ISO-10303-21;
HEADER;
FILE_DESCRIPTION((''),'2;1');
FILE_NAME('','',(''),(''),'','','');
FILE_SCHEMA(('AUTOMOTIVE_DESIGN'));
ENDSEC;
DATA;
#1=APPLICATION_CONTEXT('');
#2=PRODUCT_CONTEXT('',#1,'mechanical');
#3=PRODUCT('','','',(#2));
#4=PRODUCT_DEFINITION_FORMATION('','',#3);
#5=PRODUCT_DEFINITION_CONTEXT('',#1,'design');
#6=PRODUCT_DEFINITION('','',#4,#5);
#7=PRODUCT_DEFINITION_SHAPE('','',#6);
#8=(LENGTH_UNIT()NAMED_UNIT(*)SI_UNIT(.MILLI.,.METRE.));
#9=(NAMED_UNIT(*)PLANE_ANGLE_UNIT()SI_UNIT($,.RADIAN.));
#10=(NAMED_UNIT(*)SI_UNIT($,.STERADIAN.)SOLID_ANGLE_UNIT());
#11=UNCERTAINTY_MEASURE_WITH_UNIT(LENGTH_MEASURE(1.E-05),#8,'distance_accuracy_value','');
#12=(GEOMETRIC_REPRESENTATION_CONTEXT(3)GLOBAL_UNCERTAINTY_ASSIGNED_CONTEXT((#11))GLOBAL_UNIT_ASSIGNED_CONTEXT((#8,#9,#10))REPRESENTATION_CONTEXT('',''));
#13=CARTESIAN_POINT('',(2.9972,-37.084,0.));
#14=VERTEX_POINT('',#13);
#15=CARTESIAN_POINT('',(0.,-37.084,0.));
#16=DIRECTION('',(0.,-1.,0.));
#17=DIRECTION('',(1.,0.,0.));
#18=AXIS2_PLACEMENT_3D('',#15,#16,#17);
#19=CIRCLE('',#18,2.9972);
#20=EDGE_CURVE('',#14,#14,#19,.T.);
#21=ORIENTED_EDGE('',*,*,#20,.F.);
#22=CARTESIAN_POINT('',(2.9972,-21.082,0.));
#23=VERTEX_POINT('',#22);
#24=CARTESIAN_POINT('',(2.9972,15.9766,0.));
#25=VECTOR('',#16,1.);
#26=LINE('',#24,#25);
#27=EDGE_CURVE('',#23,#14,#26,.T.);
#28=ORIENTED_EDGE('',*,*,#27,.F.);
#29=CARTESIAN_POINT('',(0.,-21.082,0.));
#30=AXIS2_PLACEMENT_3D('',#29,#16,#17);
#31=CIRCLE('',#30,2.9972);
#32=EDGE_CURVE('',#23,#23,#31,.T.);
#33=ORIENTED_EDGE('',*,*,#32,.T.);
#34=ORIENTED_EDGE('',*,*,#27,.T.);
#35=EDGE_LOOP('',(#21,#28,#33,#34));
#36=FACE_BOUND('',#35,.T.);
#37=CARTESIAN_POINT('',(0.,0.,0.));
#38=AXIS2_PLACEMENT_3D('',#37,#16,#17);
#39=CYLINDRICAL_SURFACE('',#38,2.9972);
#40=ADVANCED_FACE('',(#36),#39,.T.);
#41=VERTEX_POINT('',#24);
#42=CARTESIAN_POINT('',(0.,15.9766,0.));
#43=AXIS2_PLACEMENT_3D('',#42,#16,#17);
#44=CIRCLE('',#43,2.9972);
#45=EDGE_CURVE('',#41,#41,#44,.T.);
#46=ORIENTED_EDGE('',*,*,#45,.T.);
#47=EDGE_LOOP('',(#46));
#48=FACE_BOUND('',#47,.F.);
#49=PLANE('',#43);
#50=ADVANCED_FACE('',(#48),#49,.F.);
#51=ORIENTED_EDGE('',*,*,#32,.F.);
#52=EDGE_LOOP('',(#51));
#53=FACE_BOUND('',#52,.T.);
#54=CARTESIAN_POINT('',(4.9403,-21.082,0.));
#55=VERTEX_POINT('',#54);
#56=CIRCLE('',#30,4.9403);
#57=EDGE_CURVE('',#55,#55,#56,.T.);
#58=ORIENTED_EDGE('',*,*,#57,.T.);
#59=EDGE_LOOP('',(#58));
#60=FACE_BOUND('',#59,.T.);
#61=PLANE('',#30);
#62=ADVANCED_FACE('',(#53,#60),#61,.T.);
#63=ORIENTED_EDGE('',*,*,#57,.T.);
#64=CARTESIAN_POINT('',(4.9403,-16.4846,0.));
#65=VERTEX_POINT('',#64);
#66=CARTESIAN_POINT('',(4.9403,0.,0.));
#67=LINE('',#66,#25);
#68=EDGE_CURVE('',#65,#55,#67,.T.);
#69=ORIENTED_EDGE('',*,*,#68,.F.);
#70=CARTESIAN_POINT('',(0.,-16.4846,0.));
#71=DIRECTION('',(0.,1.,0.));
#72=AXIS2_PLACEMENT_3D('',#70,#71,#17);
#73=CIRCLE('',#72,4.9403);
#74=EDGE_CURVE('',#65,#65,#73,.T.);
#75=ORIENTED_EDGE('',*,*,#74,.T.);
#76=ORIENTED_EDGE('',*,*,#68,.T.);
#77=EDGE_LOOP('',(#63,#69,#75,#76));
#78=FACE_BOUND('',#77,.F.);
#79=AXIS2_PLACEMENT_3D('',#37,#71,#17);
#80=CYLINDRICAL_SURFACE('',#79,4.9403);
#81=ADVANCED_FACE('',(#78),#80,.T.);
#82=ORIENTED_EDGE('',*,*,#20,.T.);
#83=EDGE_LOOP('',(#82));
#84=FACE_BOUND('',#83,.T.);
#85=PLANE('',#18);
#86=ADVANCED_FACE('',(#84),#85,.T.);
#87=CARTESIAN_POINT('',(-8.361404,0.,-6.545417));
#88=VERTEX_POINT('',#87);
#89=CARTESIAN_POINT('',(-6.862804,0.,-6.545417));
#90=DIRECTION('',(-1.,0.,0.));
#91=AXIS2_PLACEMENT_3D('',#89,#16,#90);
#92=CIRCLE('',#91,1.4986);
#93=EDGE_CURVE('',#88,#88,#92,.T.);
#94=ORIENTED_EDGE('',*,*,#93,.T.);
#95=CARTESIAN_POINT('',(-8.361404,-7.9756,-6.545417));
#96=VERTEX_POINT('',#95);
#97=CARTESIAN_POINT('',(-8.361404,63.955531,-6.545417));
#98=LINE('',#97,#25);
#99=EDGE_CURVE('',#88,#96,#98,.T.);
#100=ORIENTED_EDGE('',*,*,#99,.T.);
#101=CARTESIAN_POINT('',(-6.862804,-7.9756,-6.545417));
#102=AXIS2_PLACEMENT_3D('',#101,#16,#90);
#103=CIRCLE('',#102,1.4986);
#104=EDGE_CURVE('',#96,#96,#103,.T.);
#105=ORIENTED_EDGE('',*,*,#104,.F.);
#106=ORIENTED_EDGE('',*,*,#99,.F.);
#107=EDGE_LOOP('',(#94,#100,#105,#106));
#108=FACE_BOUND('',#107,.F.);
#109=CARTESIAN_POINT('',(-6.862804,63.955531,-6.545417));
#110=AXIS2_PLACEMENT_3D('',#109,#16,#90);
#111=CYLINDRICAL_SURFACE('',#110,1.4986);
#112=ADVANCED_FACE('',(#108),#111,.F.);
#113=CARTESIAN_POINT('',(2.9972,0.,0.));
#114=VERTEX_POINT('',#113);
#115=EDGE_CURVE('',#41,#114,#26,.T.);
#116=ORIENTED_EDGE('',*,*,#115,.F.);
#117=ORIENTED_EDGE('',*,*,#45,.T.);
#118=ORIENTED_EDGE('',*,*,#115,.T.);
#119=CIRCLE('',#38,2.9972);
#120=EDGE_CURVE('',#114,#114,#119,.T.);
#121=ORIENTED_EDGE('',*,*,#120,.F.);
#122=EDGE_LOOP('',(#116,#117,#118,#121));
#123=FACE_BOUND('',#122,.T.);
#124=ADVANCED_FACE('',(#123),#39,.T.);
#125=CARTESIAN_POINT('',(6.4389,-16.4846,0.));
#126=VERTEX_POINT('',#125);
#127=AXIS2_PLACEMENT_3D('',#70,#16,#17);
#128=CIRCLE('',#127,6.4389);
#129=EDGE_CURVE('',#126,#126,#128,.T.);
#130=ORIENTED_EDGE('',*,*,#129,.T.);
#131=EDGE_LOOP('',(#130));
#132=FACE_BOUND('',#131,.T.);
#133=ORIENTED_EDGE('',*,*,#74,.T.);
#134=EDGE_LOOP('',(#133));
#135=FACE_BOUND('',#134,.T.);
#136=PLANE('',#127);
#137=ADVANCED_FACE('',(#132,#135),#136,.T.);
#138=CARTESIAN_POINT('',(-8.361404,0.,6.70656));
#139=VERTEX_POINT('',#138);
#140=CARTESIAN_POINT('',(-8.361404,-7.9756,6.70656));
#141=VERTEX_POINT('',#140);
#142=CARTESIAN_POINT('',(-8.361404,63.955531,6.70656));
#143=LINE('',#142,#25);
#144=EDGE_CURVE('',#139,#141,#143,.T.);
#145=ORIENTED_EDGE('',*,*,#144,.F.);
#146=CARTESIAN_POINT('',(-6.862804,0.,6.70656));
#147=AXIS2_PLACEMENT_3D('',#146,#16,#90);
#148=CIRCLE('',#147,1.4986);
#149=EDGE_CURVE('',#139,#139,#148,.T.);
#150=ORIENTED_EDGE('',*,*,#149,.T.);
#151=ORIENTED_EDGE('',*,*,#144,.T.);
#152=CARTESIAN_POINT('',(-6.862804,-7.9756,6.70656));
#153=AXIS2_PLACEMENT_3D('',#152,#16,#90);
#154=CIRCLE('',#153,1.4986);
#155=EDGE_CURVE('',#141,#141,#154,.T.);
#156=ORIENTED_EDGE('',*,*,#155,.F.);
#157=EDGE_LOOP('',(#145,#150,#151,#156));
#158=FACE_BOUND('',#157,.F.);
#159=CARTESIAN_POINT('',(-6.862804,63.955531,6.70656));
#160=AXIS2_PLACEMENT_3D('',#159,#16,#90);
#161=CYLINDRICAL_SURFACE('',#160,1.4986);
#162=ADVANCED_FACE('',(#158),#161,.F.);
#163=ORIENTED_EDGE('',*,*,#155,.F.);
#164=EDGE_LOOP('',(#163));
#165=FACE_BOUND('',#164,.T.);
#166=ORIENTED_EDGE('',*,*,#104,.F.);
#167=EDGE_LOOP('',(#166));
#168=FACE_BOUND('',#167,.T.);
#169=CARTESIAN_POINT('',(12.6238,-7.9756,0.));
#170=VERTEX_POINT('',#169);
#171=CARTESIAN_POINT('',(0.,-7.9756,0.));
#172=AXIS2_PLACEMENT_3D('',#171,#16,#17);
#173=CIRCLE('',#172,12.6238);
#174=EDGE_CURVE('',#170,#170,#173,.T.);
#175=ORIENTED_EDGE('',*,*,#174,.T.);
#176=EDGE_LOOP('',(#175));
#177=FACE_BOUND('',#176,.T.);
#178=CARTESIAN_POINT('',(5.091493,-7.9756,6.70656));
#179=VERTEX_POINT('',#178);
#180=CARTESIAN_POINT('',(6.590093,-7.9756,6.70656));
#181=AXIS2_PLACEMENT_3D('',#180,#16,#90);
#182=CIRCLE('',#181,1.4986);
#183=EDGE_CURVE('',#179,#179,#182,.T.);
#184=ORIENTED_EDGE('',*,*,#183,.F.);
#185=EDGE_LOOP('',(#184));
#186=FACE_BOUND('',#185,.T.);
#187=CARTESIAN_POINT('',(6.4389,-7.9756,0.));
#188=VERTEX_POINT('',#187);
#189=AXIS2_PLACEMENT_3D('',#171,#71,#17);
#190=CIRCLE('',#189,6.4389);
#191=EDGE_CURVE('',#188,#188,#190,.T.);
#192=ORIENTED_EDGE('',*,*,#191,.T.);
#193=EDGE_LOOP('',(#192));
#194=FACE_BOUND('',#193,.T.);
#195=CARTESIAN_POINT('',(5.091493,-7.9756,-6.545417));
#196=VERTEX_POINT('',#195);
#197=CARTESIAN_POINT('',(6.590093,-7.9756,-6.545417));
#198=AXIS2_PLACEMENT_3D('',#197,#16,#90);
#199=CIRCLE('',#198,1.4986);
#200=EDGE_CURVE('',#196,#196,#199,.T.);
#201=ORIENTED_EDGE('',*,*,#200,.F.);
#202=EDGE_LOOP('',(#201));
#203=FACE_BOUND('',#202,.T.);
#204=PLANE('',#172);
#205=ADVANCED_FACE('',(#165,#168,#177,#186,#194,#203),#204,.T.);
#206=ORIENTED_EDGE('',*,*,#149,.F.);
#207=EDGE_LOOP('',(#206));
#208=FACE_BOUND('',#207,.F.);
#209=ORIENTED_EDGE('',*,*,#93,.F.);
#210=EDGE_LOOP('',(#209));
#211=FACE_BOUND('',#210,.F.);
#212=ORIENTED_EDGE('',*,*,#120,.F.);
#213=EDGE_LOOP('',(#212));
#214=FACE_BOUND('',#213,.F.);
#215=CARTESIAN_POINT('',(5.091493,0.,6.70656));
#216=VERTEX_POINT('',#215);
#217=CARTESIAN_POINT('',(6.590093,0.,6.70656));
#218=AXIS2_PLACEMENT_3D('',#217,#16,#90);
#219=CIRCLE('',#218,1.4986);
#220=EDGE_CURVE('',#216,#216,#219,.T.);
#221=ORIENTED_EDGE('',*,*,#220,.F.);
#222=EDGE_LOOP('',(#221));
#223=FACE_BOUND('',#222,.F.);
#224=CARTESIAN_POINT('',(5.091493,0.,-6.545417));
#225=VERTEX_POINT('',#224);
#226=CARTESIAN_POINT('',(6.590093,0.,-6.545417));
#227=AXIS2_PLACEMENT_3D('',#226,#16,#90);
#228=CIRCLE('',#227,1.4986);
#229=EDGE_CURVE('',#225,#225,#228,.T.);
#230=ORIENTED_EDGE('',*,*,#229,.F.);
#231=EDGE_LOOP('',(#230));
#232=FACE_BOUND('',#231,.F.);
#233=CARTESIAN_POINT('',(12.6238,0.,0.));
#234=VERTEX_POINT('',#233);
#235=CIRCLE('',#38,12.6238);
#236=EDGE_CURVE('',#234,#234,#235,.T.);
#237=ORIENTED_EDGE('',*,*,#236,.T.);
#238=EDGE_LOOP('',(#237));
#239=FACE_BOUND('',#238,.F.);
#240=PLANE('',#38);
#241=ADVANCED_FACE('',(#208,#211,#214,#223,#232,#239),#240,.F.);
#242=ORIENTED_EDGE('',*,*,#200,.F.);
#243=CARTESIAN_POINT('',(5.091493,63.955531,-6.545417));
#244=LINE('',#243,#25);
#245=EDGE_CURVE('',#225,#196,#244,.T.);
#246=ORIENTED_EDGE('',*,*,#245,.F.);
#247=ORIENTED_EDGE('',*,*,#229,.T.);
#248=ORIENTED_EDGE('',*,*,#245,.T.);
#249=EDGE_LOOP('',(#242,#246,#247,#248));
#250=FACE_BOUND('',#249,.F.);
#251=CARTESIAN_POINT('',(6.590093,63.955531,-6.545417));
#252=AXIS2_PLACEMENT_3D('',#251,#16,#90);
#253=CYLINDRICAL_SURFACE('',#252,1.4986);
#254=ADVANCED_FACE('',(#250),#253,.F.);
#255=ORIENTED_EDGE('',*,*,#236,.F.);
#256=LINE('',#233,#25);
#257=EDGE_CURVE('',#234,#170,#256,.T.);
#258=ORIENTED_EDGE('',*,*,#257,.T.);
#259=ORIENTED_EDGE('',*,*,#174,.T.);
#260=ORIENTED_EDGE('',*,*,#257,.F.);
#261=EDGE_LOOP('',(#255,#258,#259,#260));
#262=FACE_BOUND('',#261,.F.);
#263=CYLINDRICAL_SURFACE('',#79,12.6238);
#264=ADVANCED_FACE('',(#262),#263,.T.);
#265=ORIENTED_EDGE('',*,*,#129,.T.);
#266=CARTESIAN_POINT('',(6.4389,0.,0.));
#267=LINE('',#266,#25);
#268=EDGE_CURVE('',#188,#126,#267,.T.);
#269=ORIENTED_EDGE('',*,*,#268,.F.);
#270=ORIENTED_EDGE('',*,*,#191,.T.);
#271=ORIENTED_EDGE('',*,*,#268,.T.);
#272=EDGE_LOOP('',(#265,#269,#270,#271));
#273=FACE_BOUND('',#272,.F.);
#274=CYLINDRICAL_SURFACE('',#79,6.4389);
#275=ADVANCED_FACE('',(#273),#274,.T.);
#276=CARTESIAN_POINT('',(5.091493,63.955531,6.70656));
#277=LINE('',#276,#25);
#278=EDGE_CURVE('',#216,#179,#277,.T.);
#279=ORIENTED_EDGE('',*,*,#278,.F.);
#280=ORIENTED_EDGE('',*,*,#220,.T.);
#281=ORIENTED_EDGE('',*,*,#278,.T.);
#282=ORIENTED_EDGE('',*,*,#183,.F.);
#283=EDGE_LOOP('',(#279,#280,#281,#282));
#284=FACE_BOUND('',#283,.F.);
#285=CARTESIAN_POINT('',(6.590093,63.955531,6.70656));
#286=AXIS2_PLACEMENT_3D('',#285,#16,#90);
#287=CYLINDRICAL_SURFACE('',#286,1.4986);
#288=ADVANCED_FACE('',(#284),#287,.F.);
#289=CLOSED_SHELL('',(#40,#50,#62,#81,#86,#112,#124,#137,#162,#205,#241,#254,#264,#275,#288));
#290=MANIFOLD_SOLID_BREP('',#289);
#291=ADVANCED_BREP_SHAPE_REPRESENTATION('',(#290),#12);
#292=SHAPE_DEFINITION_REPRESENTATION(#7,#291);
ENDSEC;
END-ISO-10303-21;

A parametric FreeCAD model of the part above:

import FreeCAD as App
import Part
import Sketcher
Q = App.Units.Quantity

doc = App.newDocument("Part")
params = doc.addObject("Spreadsheet::Sheet", "Params")
for row, (alias, value) in enumerate([
    ("sketch1_diameter", "0.236 in"),
    ("pad1_length", "1.46 in"),
    ("pad1_length2", "0.629 in"),
    ("sketch2_diameter", "0.389 in"),
    ("pad2_length", "0.83 in"),
    ("sketch3_diameter", "0.507 in"),
    ("pad3_length", "0.649 in"),
    ("sketch4_diameter", "0.994 in"),
    ("pad4_length", "0.314 in"),
    ("sketch5_diameter", "0.118 in"),
    ("hole_diameter", "0.118 in"),
], start=1):
    params.set(f"A{row}", alias)
    params.set(f"B{row}", "=" + value)
    params.setAlias(f"B{row}", alias)

body = doc.addObject("PartDesign::Body", "Body")

sketch1 = body.newObject("Sketcher::SketchObject", "Sketch")
sketch1.AttachmentSupport = (doc.getObject("XZ_Plane"), [""])
sketch1.MapMode = "FlatFace"
sketch1.addGeometry(Part.Circle(App.Vector(0, 0, 0), App.Vector(0, 0, 1), 3), False)
sketch1.addConstraint(Sketcher.Constraint("Coincident", 0, 3, -1, 1))
sketch1.addConstraint(Sketcher.Constraint("Diameter", 0, Q("0.236 in")))
sketch1.setExpression("Constraints[1]", "Params.sketch1_diameter")
pad1 = body.newObject("PartDesign::Pad", "Pad")
pad1.Profile = sketch1
pad1.Type = "TwoLengths"
pad1.setExpression("Length", "Params.pad1_length")
pad1.setExpression("Length2", "Params.pad1_length2")

sketch2 = body.newObject("Sketcher::SketchObject", "Sketch001")
sketch2.AttachmentSupport = (doc.getObject("XZ_Plane"), [""])
sketch2.MapMode = "FlatFace"
sketch2.addGeometry(Part.Circle(App.Vector(0, 0, 0), App.Vector(0, 0, 1), 4.9), False)
sketch2.addConstraint(Sketcher.Constraint("Coincident", 0, 3, -1, 1))
sketch2.addConstraint(Sketcher.Constraint("Diameter", 0, Q("0.389 in")))
sketch2.setExpression("Constraints[1]", "Params.sketch2_diameter")
pad2 = body.newObject("PartDesign::Pad", "Pad001")
pad2.Profile = sketch2
pad2.setExpression("Length", "Params.pad2_length")

sketch3 = body.newObject("Sketcher::SketchObject", "Sketch002")
sketch3.AttachmentSupport = (doc.getObject("XZ_Plane"), [""])
sketch3.MapMode = "FlatFace"
sketch3.addGeometry(Part.Circle(App.Vector(0, 0, 0), App.Vector(0, 0, 1), 6), False)
sketch3.addConstraint(Sketcher.Constraint("Coincident", 0, 3, -1, 1))
sketch3.addConstraint(Sketcher.Constraint("Diameter", 0, Q("0.507 in")))
sketch3.setExpression("Constraints[1]", "Params.sketch3_diameter")
pad3 = body.newObject("PartDesign::Pad", "Pad002")
pad3.Profile = sketch3
pad3.setExpression("Length", "Params.pad3_length")

sketch4 = body.newObject("Sketcher::SketchObject", "Sketch003")
sketch4.AttachmentSupport = (doc.getObject("XZ_Plane"), [""])
sketch4.MapMode = "FlatFace"
sketch4.addGeometry(Part.Circle(App.Vector(0, 0, 0), App.Vector(0, 0, 1), 13), False)
sketch4.addConstraint(Sketcher.Constraint("Coincident", 0, 3, -1, 1))
sketch4.addConstraint(Sketcher.Constraint("Diameter", 0, Q("0.994 in")))
sketch4.setExpression("Constraints[1]", "Params.sketch4_diameter")
pad4 = body.newObject("PartDesign::Pad", "Pad003")
pad4.Profile = sketch4
pad4.setExpression("Length", "Params.pad4_length")

sketch5 = body.newObject("Sketcher::SketchObject", "Sketch004")
sketch5.AttachmentSupport = (doc.getObject("XZ_Plane"), [""])
sketch5.MapMode = "FlatFace"
sketch5.addGeometry(Part.Circle(App.Vector(-6.9, 6.7, 0), App.Vector(0, 0, 1), 1.5), False)
sketch5.addGeometry(Part.Circle(App.Vector(6.6, 6.7, 0), App.Vector(0, 0, 1), 1.5), False)
sketch5.addGeometry(Part.Circle(App.Vector(6.6, -6.5, 0), App.Vector(0, 0, 1), 1.5), False)
sketch5.addGeometry(Part.Circle(App.Vector(-6.9, -6.5, 0), App.Vector(0, 0, 1), 1.5), False)
sketch5.addConstraint(Sketcher.Constraint("Equal", 0, 1))
sketch5.addConstraint(Sketcher.Constraint("Equal", 1, 2))
sketch5.addConstraint(Sketcher.Constraint("Equal", 2, 3))
sketch5.addConstraint(Sketcher.Constraint("Horizontal", 0, 3, 1, 3))
sketch5.addConstraint(Sketcher.Constraint("Horizontal", 2, 3, 3, 3))
sketch5.addConstraint(Sketcher.Constraint("Vertical", 1, 3, 2, 3))
sketch5.addConstraint(Sketcher.Constraint("Vertical", 0, 3, 3, 3))
sketch5.addConstraint(Sketcher.Constraint("Diameter", 0, Q("0.118 in")))
sketch5.addConstraint(Sketcher.Constraint("DistanceY", -1, 1, 0, 3, Q("6.70656 mm")))
sketch5.addConstraint(Sketcher.Constraint("DistanceX", 0, 3, -1, 1, Q("6.862804 mm")))
sketch5.addConstraint(Sketcher.Constraint("DistanceX", -1, 1, 1, 3, Q("6.590093 mm")))
sketch5.addConstraint(Sketcher.Constraint("DistanceY", 2, 3, -1, 1, Q("6.545417 mm")))
sketch5.setExpression("Constraints[7]", "Params.sketch5_diameter")
doc.recompute()
hole = body.newObject("PartDesign::Hole", "Hole")
hole.Profile = sketch5
hole.ThreadType = "None"
hole.setExpression("Diameter", "Params.hole_diameter")
hole.DepthType = "ThroughAll"
hole.Reversed = True

doc.recompute()
